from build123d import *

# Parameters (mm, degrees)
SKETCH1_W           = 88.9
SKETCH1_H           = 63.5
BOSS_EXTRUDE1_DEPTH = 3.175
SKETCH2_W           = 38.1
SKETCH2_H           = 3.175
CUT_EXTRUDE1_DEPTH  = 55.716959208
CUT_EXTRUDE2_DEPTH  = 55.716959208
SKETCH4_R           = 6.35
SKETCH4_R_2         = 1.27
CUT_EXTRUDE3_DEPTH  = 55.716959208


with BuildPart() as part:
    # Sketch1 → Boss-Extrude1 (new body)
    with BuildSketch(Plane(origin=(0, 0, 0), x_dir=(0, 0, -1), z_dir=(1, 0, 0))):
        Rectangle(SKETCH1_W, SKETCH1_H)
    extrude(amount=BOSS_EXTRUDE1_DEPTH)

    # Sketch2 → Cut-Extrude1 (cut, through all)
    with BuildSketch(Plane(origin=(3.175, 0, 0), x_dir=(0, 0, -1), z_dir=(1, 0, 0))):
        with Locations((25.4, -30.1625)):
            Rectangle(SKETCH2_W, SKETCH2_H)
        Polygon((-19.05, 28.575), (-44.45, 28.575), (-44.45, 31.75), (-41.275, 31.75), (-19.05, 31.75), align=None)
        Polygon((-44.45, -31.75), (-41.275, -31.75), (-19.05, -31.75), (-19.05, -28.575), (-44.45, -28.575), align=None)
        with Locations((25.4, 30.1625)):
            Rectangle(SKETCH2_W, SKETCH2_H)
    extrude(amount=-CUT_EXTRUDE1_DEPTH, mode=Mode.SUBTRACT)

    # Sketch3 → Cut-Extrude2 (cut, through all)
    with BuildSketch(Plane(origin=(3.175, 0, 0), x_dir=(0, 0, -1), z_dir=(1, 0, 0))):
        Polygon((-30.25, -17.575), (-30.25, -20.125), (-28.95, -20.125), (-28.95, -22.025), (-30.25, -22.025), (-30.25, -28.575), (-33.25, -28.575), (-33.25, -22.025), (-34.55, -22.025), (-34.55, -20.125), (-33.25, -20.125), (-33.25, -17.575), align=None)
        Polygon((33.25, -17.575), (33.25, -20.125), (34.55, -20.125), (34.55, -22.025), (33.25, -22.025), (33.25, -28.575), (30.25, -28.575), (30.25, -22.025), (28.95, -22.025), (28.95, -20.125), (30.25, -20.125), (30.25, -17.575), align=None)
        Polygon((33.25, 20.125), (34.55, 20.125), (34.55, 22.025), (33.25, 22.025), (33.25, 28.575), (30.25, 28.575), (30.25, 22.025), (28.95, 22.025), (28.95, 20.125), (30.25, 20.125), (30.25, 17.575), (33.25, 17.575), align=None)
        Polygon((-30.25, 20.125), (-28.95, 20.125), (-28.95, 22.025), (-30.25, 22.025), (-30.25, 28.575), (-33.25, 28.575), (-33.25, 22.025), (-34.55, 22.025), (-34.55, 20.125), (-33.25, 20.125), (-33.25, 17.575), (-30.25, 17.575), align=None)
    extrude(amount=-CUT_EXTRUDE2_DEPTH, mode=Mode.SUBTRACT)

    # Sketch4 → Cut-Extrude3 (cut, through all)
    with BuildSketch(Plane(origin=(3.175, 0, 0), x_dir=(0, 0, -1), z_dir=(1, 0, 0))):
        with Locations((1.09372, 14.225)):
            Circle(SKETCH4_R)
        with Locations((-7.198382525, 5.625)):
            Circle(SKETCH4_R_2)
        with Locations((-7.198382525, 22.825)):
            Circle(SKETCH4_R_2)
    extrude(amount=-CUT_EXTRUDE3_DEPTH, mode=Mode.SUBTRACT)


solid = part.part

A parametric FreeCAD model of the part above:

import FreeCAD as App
import Part
import Sketcher
Q = App.Units.Quantity


def add_polygon(sketch, points):
    """Adds a closed chain of lines whose ends are joined by coincident constraints."""
    first, n = sketch.GeometryCount, len(points)
    for a, b in zip(points, points[1:] + points[:1]):
        sketch.addGeometry(Part.LineSegment(App.Vector(*a, 0), App.Vector(*b, 0)), False)
    for i in range(n):
        sketch.addConstraint(Sketcher.Constraint("Coincident", first + i, 2, first + (i + 1) % n, 1))

doc = App.newDocument("Part")
body = doc.addObject("PartDesign::Body", "Body")

sketch1 = doc.addObject("Sketcher::SketchObject", "Sketch")
body.addObject(sketch1)
sketch1.AttachmentSupport = (doc.YZ_Plane, [""])
sketch1.MapMode = "FlatFace"
add_polygon(sketch1, [(32, 44), (-32, 44), (-32, -44), (32, -44)])
sketch1.addConstraint([
    Sketcher.Constraint("Horizontal", 0),
    Sketcher.Constraint("Vertical", 1),
    Sketcher.Constraint("Horizontal", 2),
    Sketcher.Constraint("Vertical", 3),
    Sketcher.Constraint("Symmetric", 0, 2, 2, 2, -1, 1),
    Sketcher.Constraint("DistanceX", 0, 2, 0, 1, Q("2.5 in")),
    Sketcher.Constraint("DistanceY", 1, 2, 1, 1, Q("3.5 in")),
])
pad1 = doc.addObject("PartDesign::Pad", "Pad")
body.addObject(pad1)
pad1.Profile = sketch1
pad1.Length = Q("0.125 in")

sketch2 = doc.addObject("Sketcher::SketchObject", "Sketch001")
body.addObject(sketch2)
sketch2.AttachmentSupport = (doc.YZ_Plane, [""])
sketch2.MapMode = "FlatFace"
sketch2.AttachmentOffset = App.Placement(App.Vector(0, 0, 0.125 * 25.4), App.Rotation())
add_polygon(sketch2, [(-28.6, -6.3), (-31.8, -6.3), (-31.8, -44.5), (-28.6, -44.5)])
add_polygon(sketch2, [(28.6, 44.5), (28.6, 19.1), (31.8, 19.1), (31.8, 44.5)])
add_polygon(sketch2, [(-31.8, 44.5), (-31.8, 19.1), (-28.6, 19.1), (-28.6, 44.5)])
add_polygon(sketch2, [(31.8, -6.3), (28.6, -6.3), (28.6, -44.5), (31.8, -44.5)])
sketch2.addConstraint([
    Sketcher.Constraint("Horizontal", 0),
    Sketcher.Constraint("Vertical", 1),
    Sketcher.Constraint("Horizontal", 2),
    Sketcher.Constraint("Vertical", 3),
    Sketcher.Constraint("Vertical", 4),
    Sketcher.Constraint("Horizontal", 5),
    Sketcher.Constraint("Vertical", 6),
    Sketcher.Constraint("Horizontal", 7),
    Sketcher.Constraint("Vertical", 8),
    Sketcher.Constraint("Horizontal", 9),
    Sketcher.Constraint("Vertical", 10),
    Sketcher.Constraint("Horizontal", 11),
    Sketcher.Constraint("Horizontal", 12),
    Sketcher.Constraint("Vertical", 13),
    Sketcher.Constraint("Horizontal", 14),
    Sketcher.Constraint("Vertical", 15),
    Sketcher.Constraint("Symmetric", 1, 2, 6, 2, -1, 1),
    Sketcher.Constraint("Symmetric", 10, 2, 13, 2, -1, 1),
    Sketcher.Constraint("Symmetric", 5, 2, 8, 2, -2),
    Sketcher.Constraint("Symmetric", 7, 2, 10, 2, -2),
    Sketcher.Constraint("Symmetric", 3, 2, 12, 2, -2),
    Sketcher.Constraint("Vertical", 6, 2, 14, 2),
    Sketcher.Constraint("DistanceY", 4, 2, 4, 1, Q("1 in")),
    Sketcher.Constraint("DistanceY", 1, 2, 1, 1, Q("1.5 in")),
    Sketcher.Constraint("DistanceY", 3, 2, 4, 2, Q("1 in")),
    Sketcher.Constraint("DistanceX", 0, 2, 5, 2, Q("2.5 in")),
    Sketcher.Constraint("DistanceX", 0, 2, 0, 1, Q("0.125 in")),
])
pocket1 = doc.addObject("PartDesign::Pocket", "Pocket")
body.addObject(pocket1)
pocket1.Profile = sketch2
pocket1.Type = "ThroughAll"

sketch3 = doc.addObject("Sketcher::SketchObject", "Sketch002")
body.addObject(sketch3)
sketch3.AttachmentSupport = (doc.YZ_Plane, [""])
sketch3.MapMode = "FlatFace"
sketch3.AttachmentOffset = App.Placement(App.Vector(0, 0, 0.125 * 25.4), App.Rotation())
add_polygon(sketch3, [(-20.1, 30.2), (-17.6, 30.2), (-17.6, 33.2), (-20.1, 33.2), (-20.1, 34.5), (-22, 34.5), (-22, 33.2), (-28.6, 33.2), (-28.6, 30.2), (-22, 30.2), (-22, 28.9), (-20.1, 28.9)])
add_polygon(sketch3, [(-20.1, -33.2), (-17.6, -33.2), (-17.6, -30.2), (-20.1, -30.2), (-20.1, -28.9), (-22, -28.9), (-22, -30.2), (-28.6, -30.2), (-28.6, -33.2), (-22, -33.2), (-22, -34.5), (-20.1, -34.5)])
add_polygon(sketch3, [(20.1, -33.2), (20.1, -34.5), (22, -34.5), (22, -33.2), (28.6, -33.2), (28.6, -30.2), (22, -30.2), (22, -28.9), (20.1, -28.9), (20.1, -30.2), (17.6, -30.2), (17.6, -33.2)])
add_polygon(sketch3, [(20.1, 30.2), (20.1, 28.9), (22, 28.9), (22, 30.2), (28.6, 30.2), (28.6, 33.2), (22, 33.2), (22, 34.5), (20.1, 34.5), (20.1, 33.2), (17.6, 33.2), (17.6, 30.2)])
sketch3.addConstraint([
    Sketcher.Constraint("Horizontal", 0),
    Sketcher.Constraint("Vertical", 1),
    Sketcher.Constraint("Horizontal", 2),
    Sketcher.Constraint("Vertical", 3),
    Sketcher.Constraint("Horizontal", 4),
    Sketcher.Constraint("Vertical", 5),
    Sketcher.Constraint("Horizontal", 6),
    Sketcher.Constraint("Vertical", 7),
    Sketcher.Constraint("Horizontal", 8),
    Sketcher.Constraint("Vertical", 9),
    Sketcher.Constraint("Horizontal", 10),
    Sketcher.Constraint("Vertical", 11),
    Sketcher.Constraint("Horizontal", 12),
    Sketcher.Constraint("Vertical", 13),
    Sketcher.Constraint("Horizontal", 14),
    Sketcher.Constraint("Vertical", 15),
    Sketcher.Constraint("Horizontal", 16),
    Sketcher.Constraint("Vertical", 17),
    Sketcher.Constraint("Horizontal", 18),
    Sketcher.Constraint("Vertical", 19),
    Sketcher.Constraint("Horizontal", 20),
    Sketcher.Constraint("Vertical", 21),
    Sketcher.Constraint("Horizontal", 22),
    Sketcher.Constraint("Vertical", 23),
    Sketcher.Constraint("Vertical", 24),
    Sketcher.Constraint("Horizontal", 25),
    Sketcher.Constraint("Vertical", 26),
    Sketcher.Constraint("Horizontal", 27),
    Sketcher.Constraint("Vertical", 28),
    Sketcher.Constraint("Horizontal", 29),
    Sketcher.Constraint("Vertical", 30),
    Sketcher.Constraint("Horizontal", 31),
    Sketcher.Constraint("Vertical", 32),
    Sketcher.Constraint("Horizontal", 33),
    Sketcher.Constraint("Vertical", 34),
    Sketcher.Constraint("Horizontal", 35),
    Sketcher.Constraint("Vertical", 36),
    Sketcher.Constraint("Horizontal", 37),
    Sketcher.Constraint("Vertical", 38),
    Sketcher.Constraint("Horizontal", 39),
    Sketcher.Constraint("Vertical", 40),
    Sketcher.Constraint("Horizontal", 41),
    Sketcher.Constraint("Vertical", 42),
    Sketcher.Constraint("Horizontal", 43),
    Sketcher.Constraint("Vertical", 44),
    Sketcher.Constraint("Horizontal", 45),
    Sketcher.Constraint("Vertical", 46),
    Sketcher.Constraint("Horizontal", 47),
    Sketcher.Constraint("Symmetric", 3, 2, 24, 2, -1, 1),
    Sketcher.Constraint("Symmetric", 5, 2, 26, 2, -1, 1),
    Sketcher.Constraint("Symmetric", 7, 2, 28, 2, -1, 1),
    Sketcher.Constraint("Symmetric", 9, 2, 30, 2, -1, 1),
    Sketcher.Constraint("Symmetric", 11, 2, 32, 2, -1, 1),
    Sketcher.Constraint("Symmetric", 1, 2, 34, 2, -1, 1),
    Sketcher.Constraint("Symmetric", 15, 2, 36, 2, -1, 1),
    Sketcher.Constraint("Symmetric", 17, 2, 38, 2, -1, 1),
    Sketcher.Constraint("Symmetric", 19, 2, 40, 2, -1, 1),
    Sketcher.Constraint("Symmetric", 21, 2, 42, 2, -1, 1),
    Sketcher.Constraint("Symmetric", 23, 2, 44, 2, -1, 1),
    Sketcher.Constraint("Symmetric", 13, 2, 46, 2, -1, 1),
    Sketcher.Constraint("Symmetric", 22, 2, 24, 2, -2),
    Sketcher.Constraint("Symmetric", 20, 2, 26, 2, -2),
    Sketcher.Constraint("Symmetric", 18, 2, 28, 2, -2),
    Sketcher.Constraint("Symmetric", 16, 2, 30, 2, -2),
    Sketcher.Constraint("Symmetric", 14, 2, 32, 2, -2),
    Sketcher.Constraint("Symmetric", 12, 2, 34, 2, -2),
    Sketcher.Constraint("Horizontal", 2, 2, 5, 2),
    Sketcher.Constraint("Horizontal", 0, 2, 7, 2),
    Sketcher.Constraint("Vertical", 5, 2, 8, 2),
    Sketcher.Constraint("Vertical", 3, 2, 10, 2),
    Sketcher.Constraint("Equal", 5, 9),
    Sketcher.Constraint("DistanceY", 12, 2, 0, 2, Q("2.5 in")),
    Sketcher.Constraint("DistanceX", 6, 2, -1, 1, Q("1.125 in")),
    Sketcher.Constraint("DistanceX", 0, 1, 0, 2, Q("2.55 mm")),
    Sketcher.Constraint("DistanceX", 4, 2, 4, 1, Q("1.9 mm")),
    Sketcher.Constraint("DistanceX", 6, 2, 6, 1, Q("6.55 mm")),
    Sketcher.Constraint("DistanceY", 1, 1, 1, 2, Q("3 mm")),
    Sketcher.Constraint("DistanceY", 3, 1, 3, 2, Q("1.3 mm")),
])
pocket2 = doc.addObject("PartDesign::Pocket", "Pocket001")
body.addObject(pocket2)
pocket2.Profile = sketch3
pocket2.Type = "ThroughAll"

sketch4 = doc.addObject("Sketcher::SketchObject", "Sketch003")
body.addObject(sketch4)
sketch4.AttachmentSupport = (doc.YZ_Plane, [""])
sketch4.MapMode = "FlatFace"
sketch4.AttachmentOffset = App.Placement(App.Vector(0, 0, 0.125 * 25.4), App.Rotation())
sketch4.addGeometry([
    Part.Circle(App.Vector(14.2, -1.1, 0), App.Vector(0, 0, 1), 6.3),
    Part.Circle(App.Vector(5.6, 7.2, 0), App.Vector(0, 0, 1), 1.3),
    Part.Circle(App.Vector(22.8, 7.2, 0), App.Vector(0, 0, 1), 1.3),
], False)
sketch4.addConstraint([
    Sketcher.Constraint("Equal", 1, 2),
    Sketcher.Constraint("Horizontal", 1, 3, 2, 3),
    Sketcher.Constraint("Diameter", 0, Q("0.5 in")),
    Sketcher.Constraint("Diameter", 1, Q("0.1 in")),
    Sketcher.Constraint("DistanceX", -1, 1, 0, 3, Q("14.225 mm")),
    Sketcher.Constraint("DistanceX", -1, 1, 1, 3, Q("5.625 mm")),
    Sketcher.Constraint("DistanceX", -1, 1, 2, 3, Q("22.825 mm")),
    Sketcher.Constraint("DistanceY", 0, 3, -1, 1, Q("1.09372 mm")),
    Sketcher.Constraint("DistanceY", -1, 1, 1, 3, Q("7.198383 mm")),
])
pocket3 = doc.addObject("PartDesign::Pocket", "Pocket002")
body.addObject(pocket3)
pocket3.Profile = sketch4
pocket3.Type = "ThroughAll"

doc.recompute()
